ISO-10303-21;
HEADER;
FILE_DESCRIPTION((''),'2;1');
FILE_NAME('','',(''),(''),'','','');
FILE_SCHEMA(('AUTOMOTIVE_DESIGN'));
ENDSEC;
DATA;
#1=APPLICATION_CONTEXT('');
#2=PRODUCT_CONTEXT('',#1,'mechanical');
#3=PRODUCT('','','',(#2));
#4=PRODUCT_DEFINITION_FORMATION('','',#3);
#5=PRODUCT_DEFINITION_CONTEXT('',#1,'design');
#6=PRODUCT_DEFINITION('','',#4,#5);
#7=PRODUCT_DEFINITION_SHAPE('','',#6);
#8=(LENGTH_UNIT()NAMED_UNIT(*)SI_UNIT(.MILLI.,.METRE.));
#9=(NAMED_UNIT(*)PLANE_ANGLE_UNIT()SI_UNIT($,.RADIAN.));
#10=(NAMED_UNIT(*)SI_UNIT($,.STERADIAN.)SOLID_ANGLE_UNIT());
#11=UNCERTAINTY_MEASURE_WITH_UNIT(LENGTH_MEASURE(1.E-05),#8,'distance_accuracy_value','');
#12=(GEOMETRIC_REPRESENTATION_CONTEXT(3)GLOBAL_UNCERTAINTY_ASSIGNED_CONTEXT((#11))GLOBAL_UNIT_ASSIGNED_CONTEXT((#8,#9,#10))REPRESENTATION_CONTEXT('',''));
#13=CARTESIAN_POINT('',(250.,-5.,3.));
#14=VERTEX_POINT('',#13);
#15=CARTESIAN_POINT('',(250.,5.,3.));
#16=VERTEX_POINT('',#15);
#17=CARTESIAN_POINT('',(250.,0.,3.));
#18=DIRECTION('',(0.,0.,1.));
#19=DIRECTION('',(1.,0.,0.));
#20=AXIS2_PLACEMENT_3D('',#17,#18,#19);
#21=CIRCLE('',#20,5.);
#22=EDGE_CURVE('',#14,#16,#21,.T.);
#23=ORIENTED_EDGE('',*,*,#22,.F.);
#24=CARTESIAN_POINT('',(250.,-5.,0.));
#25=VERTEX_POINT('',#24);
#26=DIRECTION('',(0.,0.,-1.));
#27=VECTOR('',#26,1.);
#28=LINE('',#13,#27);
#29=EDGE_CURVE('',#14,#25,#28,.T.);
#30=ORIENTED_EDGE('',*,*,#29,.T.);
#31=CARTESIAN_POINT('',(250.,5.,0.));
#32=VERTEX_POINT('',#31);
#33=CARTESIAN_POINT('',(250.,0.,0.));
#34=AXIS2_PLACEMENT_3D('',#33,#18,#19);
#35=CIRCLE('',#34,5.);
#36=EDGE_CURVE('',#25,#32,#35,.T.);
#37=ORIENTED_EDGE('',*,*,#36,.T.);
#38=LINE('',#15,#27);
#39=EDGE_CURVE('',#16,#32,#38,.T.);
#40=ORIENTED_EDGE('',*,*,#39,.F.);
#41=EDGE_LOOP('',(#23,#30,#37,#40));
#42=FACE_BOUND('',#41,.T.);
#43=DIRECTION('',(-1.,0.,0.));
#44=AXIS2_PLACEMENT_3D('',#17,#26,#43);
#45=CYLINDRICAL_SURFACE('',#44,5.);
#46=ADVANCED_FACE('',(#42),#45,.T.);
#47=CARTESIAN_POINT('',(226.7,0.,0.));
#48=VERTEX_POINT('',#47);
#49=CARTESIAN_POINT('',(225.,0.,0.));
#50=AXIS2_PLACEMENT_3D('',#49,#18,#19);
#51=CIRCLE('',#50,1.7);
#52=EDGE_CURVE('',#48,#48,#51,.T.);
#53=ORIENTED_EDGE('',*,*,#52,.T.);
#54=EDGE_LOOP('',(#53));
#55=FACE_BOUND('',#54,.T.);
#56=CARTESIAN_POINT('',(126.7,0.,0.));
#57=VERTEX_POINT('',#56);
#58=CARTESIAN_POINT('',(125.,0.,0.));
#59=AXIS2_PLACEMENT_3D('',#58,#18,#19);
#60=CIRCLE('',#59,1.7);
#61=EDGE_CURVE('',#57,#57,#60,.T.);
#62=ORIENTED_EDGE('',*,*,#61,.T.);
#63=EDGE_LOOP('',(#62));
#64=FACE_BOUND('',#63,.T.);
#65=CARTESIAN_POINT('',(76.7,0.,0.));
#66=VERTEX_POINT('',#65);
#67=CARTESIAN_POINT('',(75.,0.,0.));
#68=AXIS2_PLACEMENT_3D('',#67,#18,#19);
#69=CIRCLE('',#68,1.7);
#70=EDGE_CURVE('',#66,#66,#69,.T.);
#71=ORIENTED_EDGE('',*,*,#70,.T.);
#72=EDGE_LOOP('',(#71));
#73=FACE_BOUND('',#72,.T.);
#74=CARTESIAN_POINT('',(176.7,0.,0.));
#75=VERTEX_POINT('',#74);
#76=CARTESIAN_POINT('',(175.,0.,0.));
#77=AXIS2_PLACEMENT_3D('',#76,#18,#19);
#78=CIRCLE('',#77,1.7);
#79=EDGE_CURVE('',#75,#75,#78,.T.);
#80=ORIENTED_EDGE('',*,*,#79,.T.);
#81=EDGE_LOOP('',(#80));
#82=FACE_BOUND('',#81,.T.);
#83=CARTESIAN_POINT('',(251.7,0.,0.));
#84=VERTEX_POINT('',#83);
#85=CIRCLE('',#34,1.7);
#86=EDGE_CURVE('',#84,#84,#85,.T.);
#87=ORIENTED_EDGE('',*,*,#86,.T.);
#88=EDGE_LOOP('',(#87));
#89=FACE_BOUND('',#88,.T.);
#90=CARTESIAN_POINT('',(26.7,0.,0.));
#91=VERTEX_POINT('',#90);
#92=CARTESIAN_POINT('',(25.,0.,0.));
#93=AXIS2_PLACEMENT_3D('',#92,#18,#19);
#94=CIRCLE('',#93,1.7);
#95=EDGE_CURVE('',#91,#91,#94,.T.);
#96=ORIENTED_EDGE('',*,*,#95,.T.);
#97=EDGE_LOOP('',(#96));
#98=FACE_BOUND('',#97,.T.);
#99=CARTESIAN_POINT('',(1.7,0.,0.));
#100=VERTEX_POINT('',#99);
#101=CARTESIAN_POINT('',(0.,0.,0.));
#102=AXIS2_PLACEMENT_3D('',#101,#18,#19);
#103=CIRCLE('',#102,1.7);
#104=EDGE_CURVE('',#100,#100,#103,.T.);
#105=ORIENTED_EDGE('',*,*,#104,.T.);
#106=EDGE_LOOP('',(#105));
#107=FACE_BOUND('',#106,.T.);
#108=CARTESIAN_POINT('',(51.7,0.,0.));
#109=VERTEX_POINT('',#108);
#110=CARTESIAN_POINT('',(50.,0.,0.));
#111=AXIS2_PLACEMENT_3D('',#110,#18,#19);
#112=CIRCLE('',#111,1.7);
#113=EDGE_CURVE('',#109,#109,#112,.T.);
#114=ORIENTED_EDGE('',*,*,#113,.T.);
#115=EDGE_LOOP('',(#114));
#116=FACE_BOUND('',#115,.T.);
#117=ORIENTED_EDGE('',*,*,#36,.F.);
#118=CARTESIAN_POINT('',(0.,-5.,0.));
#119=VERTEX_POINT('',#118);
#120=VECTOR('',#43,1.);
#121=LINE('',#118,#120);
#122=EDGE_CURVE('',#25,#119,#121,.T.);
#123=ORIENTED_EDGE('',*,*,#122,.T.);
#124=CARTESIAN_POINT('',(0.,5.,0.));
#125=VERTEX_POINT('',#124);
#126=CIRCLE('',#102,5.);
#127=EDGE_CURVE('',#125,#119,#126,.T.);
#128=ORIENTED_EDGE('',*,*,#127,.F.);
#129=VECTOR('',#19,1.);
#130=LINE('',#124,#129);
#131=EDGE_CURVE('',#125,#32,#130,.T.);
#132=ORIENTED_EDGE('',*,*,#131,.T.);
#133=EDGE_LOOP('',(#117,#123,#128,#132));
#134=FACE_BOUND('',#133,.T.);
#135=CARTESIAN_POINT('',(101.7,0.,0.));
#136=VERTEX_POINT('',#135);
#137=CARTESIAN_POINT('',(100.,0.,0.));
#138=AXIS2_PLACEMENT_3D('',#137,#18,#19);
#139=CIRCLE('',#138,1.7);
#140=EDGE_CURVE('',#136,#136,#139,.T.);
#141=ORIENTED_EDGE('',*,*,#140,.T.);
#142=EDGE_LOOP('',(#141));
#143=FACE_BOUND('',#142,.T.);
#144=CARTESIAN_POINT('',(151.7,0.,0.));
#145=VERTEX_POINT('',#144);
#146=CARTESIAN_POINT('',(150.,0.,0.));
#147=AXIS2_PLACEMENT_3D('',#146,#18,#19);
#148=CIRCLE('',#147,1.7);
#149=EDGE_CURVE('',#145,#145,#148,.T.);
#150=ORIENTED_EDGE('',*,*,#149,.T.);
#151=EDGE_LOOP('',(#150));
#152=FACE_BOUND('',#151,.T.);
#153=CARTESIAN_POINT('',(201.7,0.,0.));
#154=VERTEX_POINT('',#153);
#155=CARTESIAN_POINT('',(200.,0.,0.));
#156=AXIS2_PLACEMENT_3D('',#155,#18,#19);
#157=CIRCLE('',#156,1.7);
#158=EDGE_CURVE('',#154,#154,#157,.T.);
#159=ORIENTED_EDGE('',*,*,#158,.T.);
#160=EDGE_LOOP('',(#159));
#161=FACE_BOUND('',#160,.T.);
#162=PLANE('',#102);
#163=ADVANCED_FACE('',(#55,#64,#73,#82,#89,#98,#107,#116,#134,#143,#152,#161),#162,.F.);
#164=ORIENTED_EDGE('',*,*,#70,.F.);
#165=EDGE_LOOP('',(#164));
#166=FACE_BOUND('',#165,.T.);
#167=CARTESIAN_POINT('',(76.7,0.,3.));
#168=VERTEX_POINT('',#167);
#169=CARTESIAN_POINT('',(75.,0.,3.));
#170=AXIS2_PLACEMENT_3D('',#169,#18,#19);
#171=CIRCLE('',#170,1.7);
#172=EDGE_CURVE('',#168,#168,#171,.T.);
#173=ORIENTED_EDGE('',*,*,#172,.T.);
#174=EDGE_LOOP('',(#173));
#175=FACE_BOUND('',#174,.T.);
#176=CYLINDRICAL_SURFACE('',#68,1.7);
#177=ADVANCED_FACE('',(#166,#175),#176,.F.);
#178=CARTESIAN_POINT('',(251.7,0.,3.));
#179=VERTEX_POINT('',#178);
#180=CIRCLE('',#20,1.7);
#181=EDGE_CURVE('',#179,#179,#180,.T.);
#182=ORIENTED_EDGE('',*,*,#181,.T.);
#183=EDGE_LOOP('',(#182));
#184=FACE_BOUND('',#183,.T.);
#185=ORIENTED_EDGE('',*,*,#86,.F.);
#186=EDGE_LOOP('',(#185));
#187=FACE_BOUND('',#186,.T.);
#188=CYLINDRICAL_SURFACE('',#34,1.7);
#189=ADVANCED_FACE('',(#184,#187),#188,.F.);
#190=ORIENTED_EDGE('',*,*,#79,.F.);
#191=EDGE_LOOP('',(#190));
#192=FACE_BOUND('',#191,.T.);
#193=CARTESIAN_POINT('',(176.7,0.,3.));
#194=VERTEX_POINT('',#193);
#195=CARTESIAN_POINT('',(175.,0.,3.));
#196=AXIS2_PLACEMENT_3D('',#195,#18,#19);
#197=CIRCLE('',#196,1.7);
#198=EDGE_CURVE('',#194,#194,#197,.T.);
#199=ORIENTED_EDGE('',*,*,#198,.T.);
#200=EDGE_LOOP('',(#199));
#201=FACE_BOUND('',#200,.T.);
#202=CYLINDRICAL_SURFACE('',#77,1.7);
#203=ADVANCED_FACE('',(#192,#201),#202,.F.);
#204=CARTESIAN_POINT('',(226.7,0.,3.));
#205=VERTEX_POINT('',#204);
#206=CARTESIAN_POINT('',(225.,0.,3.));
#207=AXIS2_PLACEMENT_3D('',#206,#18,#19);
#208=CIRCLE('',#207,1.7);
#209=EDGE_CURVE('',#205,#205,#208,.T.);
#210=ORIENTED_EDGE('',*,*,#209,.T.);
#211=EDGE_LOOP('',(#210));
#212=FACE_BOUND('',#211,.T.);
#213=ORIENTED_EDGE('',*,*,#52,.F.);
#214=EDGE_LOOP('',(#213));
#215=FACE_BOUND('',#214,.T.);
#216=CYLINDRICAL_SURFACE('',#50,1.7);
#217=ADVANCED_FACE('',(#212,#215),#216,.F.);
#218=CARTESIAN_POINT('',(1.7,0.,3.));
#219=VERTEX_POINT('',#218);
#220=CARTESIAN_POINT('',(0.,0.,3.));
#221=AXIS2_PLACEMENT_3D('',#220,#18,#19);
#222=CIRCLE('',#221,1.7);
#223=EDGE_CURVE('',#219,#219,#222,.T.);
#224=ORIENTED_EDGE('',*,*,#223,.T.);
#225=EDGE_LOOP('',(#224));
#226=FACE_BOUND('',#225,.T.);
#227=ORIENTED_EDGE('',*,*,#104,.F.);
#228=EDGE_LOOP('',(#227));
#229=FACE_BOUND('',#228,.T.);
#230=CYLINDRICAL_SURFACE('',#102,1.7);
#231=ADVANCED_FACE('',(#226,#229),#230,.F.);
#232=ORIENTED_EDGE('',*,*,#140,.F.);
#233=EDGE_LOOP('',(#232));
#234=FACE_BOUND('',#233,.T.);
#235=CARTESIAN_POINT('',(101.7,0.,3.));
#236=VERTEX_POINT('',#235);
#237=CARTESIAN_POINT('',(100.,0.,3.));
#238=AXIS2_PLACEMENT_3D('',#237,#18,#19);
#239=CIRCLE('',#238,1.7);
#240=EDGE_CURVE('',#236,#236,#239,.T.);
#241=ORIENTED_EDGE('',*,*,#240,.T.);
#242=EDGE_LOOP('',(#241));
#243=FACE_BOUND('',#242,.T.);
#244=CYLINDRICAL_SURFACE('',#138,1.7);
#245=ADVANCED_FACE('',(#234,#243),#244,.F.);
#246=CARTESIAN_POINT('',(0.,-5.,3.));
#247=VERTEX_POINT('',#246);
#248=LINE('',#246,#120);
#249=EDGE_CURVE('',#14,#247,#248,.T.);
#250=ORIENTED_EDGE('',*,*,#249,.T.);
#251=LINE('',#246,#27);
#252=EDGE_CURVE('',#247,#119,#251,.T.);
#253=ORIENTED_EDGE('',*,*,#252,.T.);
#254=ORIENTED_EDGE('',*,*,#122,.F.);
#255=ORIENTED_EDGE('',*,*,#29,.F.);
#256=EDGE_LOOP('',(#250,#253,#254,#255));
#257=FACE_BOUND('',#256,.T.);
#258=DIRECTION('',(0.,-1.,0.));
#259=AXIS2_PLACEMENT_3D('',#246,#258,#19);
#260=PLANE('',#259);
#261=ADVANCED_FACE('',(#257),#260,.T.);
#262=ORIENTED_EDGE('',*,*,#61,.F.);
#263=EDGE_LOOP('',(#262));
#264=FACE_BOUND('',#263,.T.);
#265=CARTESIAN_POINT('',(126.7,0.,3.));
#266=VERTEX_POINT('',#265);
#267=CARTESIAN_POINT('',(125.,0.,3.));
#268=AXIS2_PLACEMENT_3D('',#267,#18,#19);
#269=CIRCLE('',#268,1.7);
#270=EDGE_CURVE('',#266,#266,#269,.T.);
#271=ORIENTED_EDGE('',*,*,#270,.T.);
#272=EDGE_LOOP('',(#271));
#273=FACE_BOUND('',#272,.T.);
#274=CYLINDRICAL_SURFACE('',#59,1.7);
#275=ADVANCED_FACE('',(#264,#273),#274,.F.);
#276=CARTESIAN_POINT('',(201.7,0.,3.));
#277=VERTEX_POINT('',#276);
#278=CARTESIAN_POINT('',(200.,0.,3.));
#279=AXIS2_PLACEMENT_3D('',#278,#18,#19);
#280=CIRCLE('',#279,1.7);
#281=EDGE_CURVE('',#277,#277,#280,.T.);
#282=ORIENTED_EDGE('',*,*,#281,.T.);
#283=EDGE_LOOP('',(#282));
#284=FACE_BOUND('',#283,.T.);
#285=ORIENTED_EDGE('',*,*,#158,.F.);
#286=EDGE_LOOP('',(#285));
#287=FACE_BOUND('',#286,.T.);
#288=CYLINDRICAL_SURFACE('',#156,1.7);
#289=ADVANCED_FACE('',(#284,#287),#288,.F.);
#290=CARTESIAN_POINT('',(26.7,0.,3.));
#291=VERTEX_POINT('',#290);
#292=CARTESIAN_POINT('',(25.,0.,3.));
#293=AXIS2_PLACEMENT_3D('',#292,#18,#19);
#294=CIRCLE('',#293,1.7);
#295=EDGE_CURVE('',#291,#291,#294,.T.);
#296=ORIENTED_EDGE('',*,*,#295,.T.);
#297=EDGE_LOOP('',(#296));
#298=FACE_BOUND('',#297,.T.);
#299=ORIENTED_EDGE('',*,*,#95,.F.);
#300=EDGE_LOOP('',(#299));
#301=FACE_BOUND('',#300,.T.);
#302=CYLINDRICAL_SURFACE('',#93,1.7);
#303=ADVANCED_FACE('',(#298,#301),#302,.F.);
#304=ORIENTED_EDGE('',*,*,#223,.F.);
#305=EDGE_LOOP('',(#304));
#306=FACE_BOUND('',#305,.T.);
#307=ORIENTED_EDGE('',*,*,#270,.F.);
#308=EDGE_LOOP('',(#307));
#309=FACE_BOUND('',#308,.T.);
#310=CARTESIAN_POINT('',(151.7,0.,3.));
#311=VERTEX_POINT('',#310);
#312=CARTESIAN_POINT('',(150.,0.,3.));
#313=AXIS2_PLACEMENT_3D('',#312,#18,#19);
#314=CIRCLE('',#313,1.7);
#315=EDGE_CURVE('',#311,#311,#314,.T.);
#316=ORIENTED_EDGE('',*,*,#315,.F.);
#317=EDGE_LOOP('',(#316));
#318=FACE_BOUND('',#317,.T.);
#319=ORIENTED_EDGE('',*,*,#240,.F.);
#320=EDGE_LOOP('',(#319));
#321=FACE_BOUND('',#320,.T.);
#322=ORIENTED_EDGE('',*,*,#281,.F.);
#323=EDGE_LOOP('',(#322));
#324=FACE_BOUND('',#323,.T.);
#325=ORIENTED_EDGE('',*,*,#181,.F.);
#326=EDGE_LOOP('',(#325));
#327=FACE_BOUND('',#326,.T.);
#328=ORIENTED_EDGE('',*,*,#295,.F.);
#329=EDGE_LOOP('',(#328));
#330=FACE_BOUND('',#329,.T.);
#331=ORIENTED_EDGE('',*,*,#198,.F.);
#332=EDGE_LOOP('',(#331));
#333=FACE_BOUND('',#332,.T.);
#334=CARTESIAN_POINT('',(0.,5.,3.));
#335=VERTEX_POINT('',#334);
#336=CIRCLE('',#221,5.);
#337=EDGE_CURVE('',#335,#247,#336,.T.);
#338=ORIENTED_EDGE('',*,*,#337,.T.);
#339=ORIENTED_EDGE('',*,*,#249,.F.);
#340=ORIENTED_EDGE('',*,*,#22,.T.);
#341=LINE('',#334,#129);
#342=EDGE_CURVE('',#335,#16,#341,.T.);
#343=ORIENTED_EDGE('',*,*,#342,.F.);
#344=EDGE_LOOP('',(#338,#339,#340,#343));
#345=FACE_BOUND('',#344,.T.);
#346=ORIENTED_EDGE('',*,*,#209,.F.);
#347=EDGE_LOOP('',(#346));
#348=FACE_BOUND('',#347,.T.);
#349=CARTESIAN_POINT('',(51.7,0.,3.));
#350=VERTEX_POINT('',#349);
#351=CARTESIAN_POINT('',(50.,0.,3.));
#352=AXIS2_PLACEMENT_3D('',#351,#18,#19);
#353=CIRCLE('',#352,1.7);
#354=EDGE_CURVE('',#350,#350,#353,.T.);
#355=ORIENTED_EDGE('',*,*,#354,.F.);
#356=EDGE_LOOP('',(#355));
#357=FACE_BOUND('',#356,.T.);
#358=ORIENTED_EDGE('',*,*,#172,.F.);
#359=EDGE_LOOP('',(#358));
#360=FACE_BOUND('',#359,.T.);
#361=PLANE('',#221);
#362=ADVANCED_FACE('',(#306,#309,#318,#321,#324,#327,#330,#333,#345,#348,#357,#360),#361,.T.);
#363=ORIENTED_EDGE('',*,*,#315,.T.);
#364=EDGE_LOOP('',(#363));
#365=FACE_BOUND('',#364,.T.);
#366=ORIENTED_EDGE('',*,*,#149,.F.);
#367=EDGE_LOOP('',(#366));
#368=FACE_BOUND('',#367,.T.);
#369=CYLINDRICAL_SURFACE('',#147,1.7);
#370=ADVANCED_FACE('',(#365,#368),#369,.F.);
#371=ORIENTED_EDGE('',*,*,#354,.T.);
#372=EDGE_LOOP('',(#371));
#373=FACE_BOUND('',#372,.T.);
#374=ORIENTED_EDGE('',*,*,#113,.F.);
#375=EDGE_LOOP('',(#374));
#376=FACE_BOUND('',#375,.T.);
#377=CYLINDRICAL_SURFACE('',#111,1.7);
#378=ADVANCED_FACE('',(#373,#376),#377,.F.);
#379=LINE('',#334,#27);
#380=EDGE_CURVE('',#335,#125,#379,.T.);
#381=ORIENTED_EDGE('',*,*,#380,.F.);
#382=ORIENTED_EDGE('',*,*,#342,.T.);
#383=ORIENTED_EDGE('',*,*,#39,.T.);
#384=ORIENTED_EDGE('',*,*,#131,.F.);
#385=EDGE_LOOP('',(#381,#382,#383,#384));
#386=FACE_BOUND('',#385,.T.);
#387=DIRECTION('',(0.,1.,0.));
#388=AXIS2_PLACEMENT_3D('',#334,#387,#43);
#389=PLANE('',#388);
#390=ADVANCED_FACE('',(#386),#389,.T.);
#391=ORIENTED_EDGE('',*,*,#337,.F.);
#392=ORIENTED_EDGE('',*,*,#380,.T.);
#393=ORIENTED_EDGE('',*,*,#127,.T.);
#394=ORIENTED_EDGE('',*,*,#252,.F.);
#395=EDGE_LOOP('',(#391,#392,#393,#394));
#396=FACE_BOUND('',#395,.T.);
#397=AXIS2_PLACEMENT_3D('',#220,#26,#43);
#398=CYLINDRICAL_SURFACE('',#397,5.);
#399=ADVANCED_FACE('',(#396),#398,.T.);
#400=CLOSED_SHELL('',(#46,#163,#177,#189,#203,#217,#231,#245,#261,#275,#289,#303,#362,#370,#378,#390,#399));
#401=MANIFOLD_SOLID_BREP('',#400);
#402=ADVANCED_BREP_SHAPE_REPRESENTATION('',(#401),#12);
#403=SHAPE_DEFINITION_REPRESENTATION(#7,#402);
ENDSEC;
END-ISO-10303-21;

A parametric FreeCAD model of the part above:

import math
import FreeCAD as App
import Part
import Sketcher

V = App.Vector
Q = App.Units.Quantity

doc = App.newDocument("Part")
body = doc.addObject("PartDesign::Body", "Body")

# Sketch on XY plane
sketch1 = doc.addObject("Sketcher::SketchObject", "Sketch")
body.addObject(sketch1)
sketch1.AttachmentSupport = (doc.XY_Plane, [""])
sketch1.MapMode = "FlatFace"
sketch1.addGeometry([
    Part.LineSegment(V(250, 5, 0), V(0, 5, 0)),
    Part.ArcOfCircle(Part.Circle(V(0, 0, 0), V(0, 0, 1), 5), math.radians(90), math.radians(270)),
    Part.LineSegment(V(0, -5, 0), V(250, -5, 0)),
    Part.ArcOfCircle(Part.Circle(V(250, 0, 0), V(0, 0, 1), 5), math.radians(-90), math.radians(90)),
], False)
sketch1.addConstraint([
    Sketcher.Constraint("Tangent", 0, 2, 1, 1),
    Sketcher.Constraint("Tangent", 1, 2, 2, 1),
    Sketcher.Constraint("Tangent", 2, 2, 3, 1),
    Sketcher.Constraint("Tangent", 3, 2, 0, 1),
    Sketcher.Constraint("Horizontal", 0),
    Sketcher.Constraint("Horizontal", 2),
    Sketcher.Constraint("Coincident", 1, 3, -1, 1),
    Sketcher.Constraint("Radius", 1, Q("5 mm")),
    Sketcher.Constraint("DistanceX", 0, 2, 0, 1, Q("250 mm")),
])
pad1 = doc.addObject("PartDesign::Pad", "Pad")
body.addObject(pad1)
pad1.Profile = sketch1
pad1.Length = 3

# Sketch on XY plane
sketch2 = doc.addObject("Sketcher::SketchObject", "Sketch001")
body.addObject(sketch2)
sketch2.AttachmentSupport = (doc.XY_Plane, [""])
sketch2.MapMode = "FlatFace"
sketch2.AttachmentOffset = App.Placement(V(0, 0, 3), App.Rotation())
sketch2.addGeometry([
    Part.Circle(V(0, 0, 0), V(0, 0, 1), 1.7),
    Part.Circle(V(250, 0, 0), V(0, 0, 1), 1.7),
], False)
sketch2.addConstraint([
    Sketcher.Constraint("Coincident", 0, 3, -1, 1),
    Sketcher.Constraint("Equal", 0, 1),
    Sketcher.Constraint("PointOnObject", 1, 3, -1),
    Sketcher.Constraint("Diameter", 0, Q("3.4 mm")),
    Sketcher.Constraint("DistanceX", -1, 1, 1, 3, Q("250 mm")),
])
pocket1 = doc.addObject("PartDesign::Pocket", "Pocket")
body.addObject(pocket1)
pocket1.Profile = sketch2
pocket1.Type = "ThroughAll"
doc.recompute()

linearpattern = doc.addObject("PartDesign::LinearPattern", "LinearPattern")
body.addObject(linearpattern)
linearpattern.Originals = [pocket1]
linearpattern.Direction = (doc.X_Axis, [""])
linearpattern.Mode = "offset"
linearpattern.Offset = 25
linearpattern.Occurrences = 10
body.Tip = linearpattern

doc.recompute()
